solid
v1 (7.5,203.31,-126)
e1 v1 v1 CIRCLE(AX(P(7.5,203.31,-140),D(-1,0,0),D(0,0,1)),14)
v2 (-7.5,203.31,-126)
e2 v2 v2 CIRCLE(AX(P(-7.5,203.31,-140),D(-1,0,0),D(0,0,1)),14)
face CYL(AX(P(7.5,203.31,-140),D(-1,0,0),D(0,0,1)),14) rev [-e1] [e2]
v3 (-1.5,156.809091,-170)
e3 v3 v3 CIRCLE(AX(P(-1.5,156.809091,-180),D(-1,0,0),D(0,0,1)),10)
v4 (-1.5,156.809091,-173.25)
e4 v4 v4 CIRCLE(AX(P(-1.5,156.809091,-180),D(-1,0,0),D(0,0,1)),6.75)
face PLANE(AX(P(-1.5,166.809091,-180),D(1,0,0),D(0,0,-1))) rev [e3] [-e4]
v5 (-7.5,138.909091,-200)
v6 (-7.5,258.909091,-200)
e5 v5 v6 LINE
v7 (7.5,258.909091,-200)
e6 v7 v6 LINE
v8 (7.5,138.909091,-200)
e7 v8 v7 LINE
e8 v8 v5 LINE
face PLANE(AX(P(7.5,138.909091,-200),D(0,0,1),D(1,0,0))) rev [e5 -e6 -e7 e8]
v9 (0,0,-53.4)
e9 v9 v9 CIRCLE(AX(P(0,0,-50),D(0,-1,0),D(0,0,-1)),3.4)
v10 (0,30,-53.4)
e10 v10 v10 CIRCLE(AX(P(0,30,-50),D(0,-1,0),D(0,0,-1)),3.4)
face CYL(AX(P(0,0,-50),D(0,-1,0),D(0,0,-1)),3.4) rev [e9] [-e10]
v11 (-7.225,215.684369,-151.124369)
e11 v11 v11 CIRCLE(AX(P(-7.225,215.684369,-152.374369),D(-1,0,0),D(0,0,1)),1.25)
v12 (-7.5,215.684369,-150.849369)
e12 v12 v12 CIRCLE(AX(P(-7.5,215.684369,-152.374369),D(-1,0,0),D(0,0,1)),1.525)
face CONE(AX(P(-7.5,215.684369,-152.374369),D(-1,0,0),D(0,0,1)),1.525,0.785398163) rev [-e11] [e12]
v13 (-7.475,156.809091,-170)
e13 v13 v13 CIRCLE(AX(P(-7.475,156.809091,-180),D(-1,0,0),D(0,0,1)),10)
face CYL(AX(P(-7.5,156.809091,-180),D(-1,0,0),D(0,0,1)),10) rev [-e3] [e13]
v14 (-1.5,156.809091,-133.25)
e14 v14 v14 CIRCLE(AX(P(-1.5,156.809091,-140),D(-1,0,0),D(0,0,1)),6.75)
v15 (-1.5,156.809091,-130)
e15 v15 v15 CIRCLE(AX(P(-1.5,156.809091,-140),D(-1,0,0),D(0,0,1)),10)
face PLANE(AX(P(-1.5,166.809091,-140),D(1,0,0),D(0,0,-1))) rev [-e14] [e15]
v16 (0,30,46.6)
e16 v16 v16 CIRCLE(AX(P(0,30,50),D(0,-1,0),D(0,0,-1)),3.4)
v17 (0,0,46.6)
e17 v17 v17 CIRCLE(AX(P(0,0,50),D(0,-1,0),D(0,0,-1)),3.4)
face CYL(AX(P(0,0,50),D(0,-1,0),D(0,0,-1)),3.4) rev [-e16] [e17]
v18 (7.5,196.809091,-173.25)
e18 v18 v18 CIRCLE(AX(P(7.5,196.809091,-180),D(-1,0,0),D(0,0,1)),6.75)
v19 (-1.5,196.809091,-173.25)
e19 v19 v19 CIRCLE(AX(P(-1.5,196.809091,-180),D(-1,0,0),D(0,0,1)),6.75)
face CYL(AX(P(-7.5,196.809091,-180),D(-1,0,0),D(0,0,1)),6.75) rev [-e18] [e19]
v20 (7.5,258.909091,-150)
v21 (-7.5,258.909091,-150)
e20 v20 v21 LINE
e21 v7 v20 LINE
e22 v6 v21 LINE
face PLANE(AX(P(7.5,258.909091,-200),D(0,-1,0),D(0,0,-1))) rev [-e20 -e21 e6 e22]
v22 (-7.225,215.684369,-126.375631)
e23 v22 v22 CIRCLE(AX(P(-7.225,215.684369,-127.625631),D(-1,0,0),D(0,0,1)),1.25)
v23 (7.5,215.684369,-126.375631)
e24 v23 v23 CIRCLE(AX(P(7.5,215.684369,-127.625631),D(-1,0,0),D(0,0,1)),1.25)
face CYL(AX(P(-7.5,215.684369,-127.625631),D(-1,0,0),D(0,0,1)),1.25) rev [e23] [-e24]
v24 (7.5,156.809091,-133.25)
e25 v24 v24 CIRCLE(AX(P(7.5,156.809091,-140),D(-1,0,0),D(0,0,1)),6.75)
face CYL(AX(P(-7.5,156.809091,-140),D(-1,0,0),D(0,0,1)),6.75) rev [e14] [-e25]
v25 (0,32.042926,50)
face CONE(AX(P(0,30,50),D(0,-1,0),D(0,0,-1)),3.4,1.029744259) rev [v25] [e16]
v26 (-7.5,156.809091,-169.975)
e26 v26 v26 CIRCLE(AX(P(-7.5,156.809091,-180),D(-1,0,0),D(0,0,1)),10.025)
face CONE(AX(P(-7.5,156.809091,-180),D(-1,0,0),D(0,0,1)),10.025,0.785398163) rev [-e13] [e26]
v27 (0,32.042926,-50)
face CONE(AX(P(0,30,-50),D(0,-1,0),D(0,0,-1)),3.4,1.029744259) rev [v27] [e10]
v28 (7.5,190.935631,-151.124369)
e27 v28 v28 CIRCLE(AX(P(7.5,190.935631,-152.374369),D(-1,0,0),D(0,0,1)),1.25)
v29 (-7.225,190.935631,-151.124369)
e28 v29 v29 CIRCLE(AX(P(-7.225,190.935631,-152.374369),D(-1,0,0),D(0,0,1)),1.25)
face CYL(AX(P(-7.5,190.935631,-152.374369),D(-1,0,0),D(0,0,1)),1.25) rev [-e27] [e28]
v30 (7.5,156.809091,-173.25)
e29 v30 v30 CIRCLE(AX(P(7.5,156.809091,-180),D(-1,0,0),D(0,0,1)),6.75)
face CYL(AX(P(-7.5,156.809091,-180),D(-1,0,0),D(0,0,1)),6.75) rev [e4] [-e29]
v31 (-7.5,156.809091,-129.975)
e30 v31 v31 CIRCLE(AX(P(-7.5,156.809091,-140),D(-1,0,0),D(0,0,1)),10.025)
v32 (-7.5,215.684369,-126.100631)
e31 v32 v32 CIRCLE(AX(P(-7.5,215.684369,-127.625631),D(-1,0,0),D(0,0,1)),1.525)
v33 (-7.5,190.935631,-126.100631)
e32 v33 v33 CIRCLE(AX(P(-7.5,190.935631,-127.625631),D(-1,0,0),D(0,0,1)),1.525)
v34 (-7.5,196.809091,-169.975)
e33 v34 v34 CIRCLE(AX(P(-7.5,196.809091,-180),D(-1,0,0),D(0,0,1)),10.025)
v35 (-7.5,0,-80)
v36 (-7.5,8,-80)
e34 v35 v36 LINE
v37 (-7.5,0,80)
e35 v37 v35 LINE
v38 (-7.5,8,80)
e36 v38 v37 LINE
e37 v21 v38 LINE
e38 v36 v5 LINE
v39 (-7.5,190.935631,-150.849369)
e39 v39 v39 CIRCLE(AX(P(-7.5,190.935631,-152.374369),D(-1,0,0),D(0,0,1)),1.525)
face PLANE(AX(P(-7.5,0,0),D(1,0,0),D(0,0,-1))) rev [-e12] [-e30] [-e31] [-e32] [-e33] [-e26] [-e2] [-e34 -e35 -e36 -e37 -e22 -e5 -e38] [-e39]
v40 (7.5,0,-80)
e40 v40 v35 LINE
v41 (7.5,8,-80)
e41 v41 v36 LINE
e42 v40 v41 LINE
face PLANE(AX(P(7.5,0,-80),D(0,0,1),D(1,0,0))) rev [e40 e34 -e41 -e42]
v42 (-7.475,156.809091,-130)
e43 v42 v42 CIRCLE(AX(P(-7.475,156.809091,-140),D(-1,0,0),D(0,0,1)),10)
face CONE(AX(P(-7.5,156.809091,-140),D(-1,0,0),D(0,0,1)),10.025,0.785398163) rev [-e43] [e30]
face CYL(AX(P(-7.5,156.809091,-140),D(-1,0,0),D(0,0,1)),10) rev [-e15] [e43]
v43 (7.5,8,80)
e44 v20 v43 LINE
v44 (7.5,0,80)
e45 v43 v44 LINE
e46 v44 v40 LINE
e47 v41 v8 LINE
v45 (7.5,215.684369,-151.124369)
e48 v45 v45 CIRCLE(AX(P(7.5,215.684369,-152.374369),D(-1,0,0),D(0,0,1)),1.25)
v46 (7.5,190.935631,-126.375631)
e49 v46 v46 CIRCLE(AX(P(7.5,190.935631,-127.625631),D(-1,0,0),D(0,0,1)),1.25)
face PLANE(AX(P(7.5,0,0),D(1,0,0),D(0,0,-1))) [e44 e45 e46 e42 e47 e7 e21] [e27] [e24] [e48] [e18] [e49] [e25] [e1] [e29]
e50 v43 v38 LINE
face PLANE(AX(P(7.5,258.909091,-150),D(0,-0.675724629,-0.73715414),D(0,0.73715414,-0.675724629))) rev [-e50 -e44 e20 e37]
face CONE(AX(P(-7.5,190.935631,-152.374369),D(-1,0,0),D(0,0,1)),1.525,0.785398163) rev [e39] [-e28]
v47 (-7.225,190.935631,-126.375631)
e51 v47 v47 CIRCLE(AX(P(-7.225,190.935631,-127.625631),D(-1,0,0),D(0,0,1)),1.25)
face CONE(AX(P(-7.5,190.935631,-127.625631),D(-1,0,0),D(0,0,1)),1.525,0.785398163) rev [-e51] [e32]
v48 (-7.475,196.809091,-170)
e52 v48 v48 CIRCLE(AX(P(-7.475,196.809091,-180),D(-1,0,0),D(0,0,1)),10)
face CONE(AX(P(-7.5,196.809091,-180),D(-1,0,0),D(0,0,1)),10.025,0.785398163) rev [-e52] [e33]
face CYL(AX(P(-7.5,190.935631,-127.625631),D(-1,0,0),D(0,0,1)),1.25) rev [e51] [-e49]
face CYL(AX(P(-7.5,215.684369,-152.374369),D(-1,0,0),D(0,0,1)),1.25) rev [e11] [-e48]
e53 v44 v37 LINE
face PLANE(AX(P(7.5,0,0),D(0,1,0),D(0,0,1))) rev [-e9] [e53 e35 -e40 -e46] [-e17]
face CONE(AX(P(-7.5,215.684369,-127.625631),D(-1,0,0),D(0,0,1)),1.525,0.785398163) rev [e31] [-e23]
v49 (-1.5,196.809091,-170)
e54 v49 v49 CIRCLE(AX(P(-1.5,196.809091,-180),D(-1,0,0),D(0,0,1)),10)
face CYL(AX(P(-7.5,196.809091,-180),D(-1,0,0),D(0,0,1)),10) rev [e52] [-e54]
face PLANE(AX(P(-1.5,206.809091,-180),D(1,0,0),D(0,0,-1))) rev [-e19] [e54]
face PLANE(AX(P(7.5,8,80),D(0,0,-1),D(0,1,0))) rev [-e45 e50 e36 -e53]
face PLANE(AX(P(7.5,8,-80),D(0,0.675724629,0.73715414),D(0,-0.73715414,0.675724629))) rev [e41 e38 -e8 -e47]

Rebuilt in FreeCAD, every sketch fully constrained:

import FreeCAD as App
import Part
import Sketcher
Q = App.Units.Quantity


def add_polygon(sketch, points):
    """Adds a closed chain of lines whose ends are joined by coincident constraints."""
    first, n = sketch.GeometryCount, len(points)
    for a, b in zip(points, points[1:] + points[:1]):
        sketch.addGeometry(Part.LineSegment(App.Vector(*a, 0), App.Vector(*b, 0)), False)
    for i in range(n):
        sketch.addConstraint(Sketcher.Constraint("Coincident", first + i, 2, first + (i + 1) % n, 1))

doc = App.newDocument("Part")
body = doc.addObject("PartDesign::Body", "Body")

sketch1 = doc.addObject("Sketcher::SketchObject", "Sketch")
body.addObject(sketch1)
sketch1.AttachmentSupport = (doc.YZ_Plane, [""])
sketch1.MapMode = "FlatFace"
add_polygon(sketch1, [(0, 80), (0, -80), (8, -80), (139, -200), (259, -200), (259, -150), (8, 80)])
sketch1.addConstraint(Sketcher.Constraint("Vertical", 0))
sketch1.addConstraint(Sketcher.Constraint("Horizontal", 1))
sketch1.addConstraint(Sketcher.Constraint("Horizontal", 3))
sketch1.addConstraint(Sketcher.Constraint("Vertical", 4))
sketch1.addConstraint(Sketcher.Constraint("Horizontal", 6))
sketch1.addConstraint(Sketcher.Constraint("Symmetric", 0, 2, 6, 2, -1, 1))
sketch1.addConstraint(Sketcher.Constraint("Parallel", 2, 5))
sketch1.addConstraint(Sketcher.Constraint("Vertical", 1, 2, 5, 2))
sketch1.addConstraint(Sketcher.Constraint("DistanceX", 1, 1, 1, 2, Q("8 mm")))
sketch1.addConstraint(Sketcher.Constraint("DistanceX", 3, 1, 3, 2, Q("120 mm")))
sketch1.addConstraint(Sketcher.Constraint("DistanceY", 0, 2, 0, 1, Q("160 mm")))
sketch1.addConstraint(Sketcher.Constraint("DistanceY", 4, 1, 4, 2, Q("50 mm")))
sketch1.addConstraint(Sketcher.Constraint("DistanceY", 2, 2, -1, 1, Q("200 mm")))
pad1 = doc.addObject("PartDesign::Pad", "Pad")
body.addObject(pad1)
pad1.Profile = sketch1
pad1.Length = 15
pad1.Midplane = True

sketch2 = doc.addObject("Sketcher::SketchObject", "Sketch001")
body.addObject(sketch2)
sketch2.AttachmentSupport = (doc.XZ_Plane, [""])
sketch2.MapMode = "FlatFace"
sketch2.addGeometry(Part.Circle(App.Vector(0, 50, 0), App.Vector(0, 0, 1), 3.4), False)
sketch2.addGeometry(Part.Circle(App.Vector(0, -50, 0), App.Vector(0, 0, 1), 3.4), False)
sketch2.addConstraint(Sketcher.Constraint("Equal", 0, 1))
sketch2.addConstraint(Sketcher.Constraint("Symmetric", 0, 3, 1, 3, -1, 1))
sketch2.addConstraint(Sketcher.Constraint("PointOnObject", 0, 3, -2))
sketch2.addConstraint(Sketcher.Constraint("Diameter", 0, Q("6.8 mm")))
sketch2.addConstraint(Sketcher.Constraint("DistanceY", -1, 1, 0, 3, Q("50 mm")))
doc.recompute()
hole = doc.addObject("PartDesign::Hole", "Hole")
body.addObject(hole)
hole.Profile = sketch2
hole.ThreadType = "None"
hole.Diameter = 6.8
hole.DepthType = "Dimension"
hole.Depth = 30
hole.DrillPoint = "Angled"
hole.DrillPointAngle = 118

sketch3 = doc.addObject("Sketcher::SketchObject", "Sketch002")
body.addObject(sketch3)
sketch3.AttachmentSupport = (doc.XZ_Plane, [""])
sketch3.MapMode = "FlatFace"
sketch3.AttachmentOffset = App.Placement(App.Vector(0, 0, -196.809091), App.Rotation())
add_polygon(sketch3, [(7.5, -180), (-7.5, -180), (-7.5, -169.975), (-7.475, -170), (-1.5, -170), (-1.5, -173.25), (7.5, -173.25)])
sketch3.addGeometry(Part.LineSegment(App.Vector(-7.5, -180, 0), App.Vector(7.5, -180, 0)), True)
sketch3.addConstraint(Sketcher.Constraint("Horizontal", 0))
sketch3.addConstraint(Sketcher.Constraint("Vertical", 1))
sketch3.addConstraint(Sketcher.Constraint("Horizontal", 3))
sketch3.addConstraint(Sketcher.Constraint("Vertical", 4))
sketch3.addConstraint(Sketcher.Constraint("Horizontal", 5))
sketch3.addConstraint(Sketcher.Constraint("Vertical", 6))
sketch3.addConstraint(Sketcher.Constraint("Horizontal", 7))
sketch3.addConstraint(Sketcher.Constraint("Coincident", 7, 1, 0, 2))
sketch3.addConstraint(Sketcher.Constraint("Vertical", 5, 2, 7, 2))
sketch3.addConstraint(Sketcher.Constraint("DistanceX", 0, 2, 0, 1, Q("15 mm")))
sketch3.addConstraint(Sketcher.Constraint("DistanceX", 5, 1, 5, 2, Q("9 mm")))
sketch3.addConstraint(Sketcher.Constraint("Angle", 2, Q("-45 deg")))
sketch3.addConstraint(Sketcher.Constraint("DistanceY", 0, 2, -1, 1, Q("180 mm")))
sketch3.addConstraint(Sketcher.Constraint("DistanceY", 2, 2, -1, 1, Q("170 mm")))
sketch3.addConstraint(Sketcher.Constraint("DistanceY", 4, 2, 4, 1, Q("3.25 mm")))
sketch3.addConstraint(Sketcher.Constraint("DistanceX", 0, 2, -1, 1, Q("7.5 mm")))
sketch3.addConstraint(Sketcher.Constraint("DistanceX", 3, 1, 3, 2, Q("5.975 mm")))
groove = doc.addObject("PartDesign::Groove", "Groove")
body.addObject(groove)
groove.Profile = sketch3
groove.ReferenceAxis = (sketch3, ["Axis0"])
groove.Angle = 360
doc.recompute()

linearpattern = doc.addObject("PartDesign::LinearPattern", "LinearPattern")
body.addObject(linearpattern)
linearpattern.Originals = [groove]
linearpattern.Direction = (doc.Y_Axis, [""])
linearpattern.Mode = "offset"
linearpattern.Offset = 40
linearpattern.Occurrences = 2
linearpattern.Reversed = True
body.Tip = linearpattern
doc.recompute()

datumline = doc.addObject("PartDesign::Line", "DatumLine")
body.addObject(datumline)
datumline.Placement = App.Placement(App.Vector(0, 0, 0), App.Rotation(App.Vector(0, 0, 1), App.Vector(0, -0.707106781, 0.707106781)))
linearpattern2 = doc.addObject("PartDesign::LinearPattern", "LinearPattern001")
body.addObject(linearpattern2)
linearpattern2.Originals = [groove]
linearpattern2.Direction = (datumline, [""])
linearpattern2.Mode = "offset"
linearpattern2.Offset = 56.568542
linearpattern2.Occurrences = 2
body.Tip = linearpattern2

sketch4 = doc.addObject("Sketcher::SketchObject", "Sketch003")
body.addObject(sketch4)
sketch4.AttachmentSupport = (doc.YZ_Plane, [""])
sketch4.MapMode = "FlatFace"
sketch4.AttachmentOffset = App.Placement(App.Vector(0, 0, -7.5), App.Rotation())
sketch4.addGeometry(Part.Circle(App.Vector(203, -140, 0), App.Vector(0, 0, 1), 14), False)
sketch4.addConstraint(Sketcher.Constraint("Diameter", 0, Q("28 mm")))
sketch4.addConstraint(Sketcher.Constraint("DistanceY", 0, 3, -1, 1, Q("140 mm")))
sketch4.addConstraint(Sketcher.Constraint("DistanceX", -1, 1, 0, 3, Q("203.31 mm")))
pocket1 = doc.addObject("PartDesign::Pocket", "Pocket")
body.addObject(pocket1)
pocket1.Profile = sketch4
pocket1.Type = "ThroughAll"
pocket1.Reversed = True

sketch5 = doc.addObject("Sketcher::SketchObject", "Sketch004")
body.addObject(sketch5)
sketch5.AttachmentSupport = (doc.YZ_Plane, [""])
sketch5.MapMode = "FlatFace"
sketch5.AttachmentOffset = App.Placement(App.Vector(0, 0, -7.5), App.Rotation())
sketch5.addGeometry(Part.Circle(App.Vector(215.7, -127.6, 0), App.Vector(0, 0, 1), 1.2), False)
sketch5.addGeometry(Part.Circle(App.Vector(190.9, -127.6, 0), App.Vector(0, 0, 1), 1.2), False)
sketch5.addGeometry(Part.Circle(App.Vector(190.9, -152.4, 0), App.Vector(0, 0, 1), 1.2), False)
sketch5.addGeometry(Part.Circle(App.Vector(215.7, -152.4, 0), App.Vector(0, 0, 1), 1.2), False)
sketch5.addConstraint(Sketcher.Constraint("Equal", 0, 1))
sketch5.addConstraint(Sketcher.Constraint("Equal", 1, 2))
sketch5.addConstraint(Sketcher.Constraint("Equal", 2, 3))
sketch5.addConstraint(Sketcher.Constraint("Horizontal", 0, 3, 1, 3))
sketch5.addConstraint(Sketcher.Constraint("Horizontal", 2, 3, 3, 3))
sketch5.addConstraint(Sketcher.Constraint("Vertical", 1, 3, 2, 3))
sketch5.addConstraint(Sketcher.Constraint("Vertical", 0, 3, 3, 3))
sketch5.addConstraint(Sketcher.Constraint("Diameter", 0, Q("2.5 mm")))
sketch5.addConstraint(Sketcher.Constraint("DistanceX", -1, 1, 0, 3, Q("215.684369 mm")))
sketch5.addConstraint(Sketcher.Constraint("DistanceY", 0, 3, -1, 1, Q("127.625631 mm")))
sketch5.addConstraint(Sketcher.Constraint("DistanceX", -1, 1, 1, 3, Q("190.935631 mm")))
sketch5.addConstraint(Sketcher.Constraint("DistanceY", 2, 3, -1, 1, Q("152.374369 mm")))
doc.recompute()
hole2 = doc.addObject("PartDesign::Hole", "Hole001")
body.addObject(hole2)
hole2.Profile = sketch5
hole2.ThreadType = "None"
hole2.Diameter = 2.5
hole2.DepthType = "ThroughAll"
hole2.HoleCutType = "Countersink"
hole2.HoleCutDiameter = 3.05
hole2.HoleCutCountersinkAngle = 90
hole2.Reversed = True

doc.recompute()
